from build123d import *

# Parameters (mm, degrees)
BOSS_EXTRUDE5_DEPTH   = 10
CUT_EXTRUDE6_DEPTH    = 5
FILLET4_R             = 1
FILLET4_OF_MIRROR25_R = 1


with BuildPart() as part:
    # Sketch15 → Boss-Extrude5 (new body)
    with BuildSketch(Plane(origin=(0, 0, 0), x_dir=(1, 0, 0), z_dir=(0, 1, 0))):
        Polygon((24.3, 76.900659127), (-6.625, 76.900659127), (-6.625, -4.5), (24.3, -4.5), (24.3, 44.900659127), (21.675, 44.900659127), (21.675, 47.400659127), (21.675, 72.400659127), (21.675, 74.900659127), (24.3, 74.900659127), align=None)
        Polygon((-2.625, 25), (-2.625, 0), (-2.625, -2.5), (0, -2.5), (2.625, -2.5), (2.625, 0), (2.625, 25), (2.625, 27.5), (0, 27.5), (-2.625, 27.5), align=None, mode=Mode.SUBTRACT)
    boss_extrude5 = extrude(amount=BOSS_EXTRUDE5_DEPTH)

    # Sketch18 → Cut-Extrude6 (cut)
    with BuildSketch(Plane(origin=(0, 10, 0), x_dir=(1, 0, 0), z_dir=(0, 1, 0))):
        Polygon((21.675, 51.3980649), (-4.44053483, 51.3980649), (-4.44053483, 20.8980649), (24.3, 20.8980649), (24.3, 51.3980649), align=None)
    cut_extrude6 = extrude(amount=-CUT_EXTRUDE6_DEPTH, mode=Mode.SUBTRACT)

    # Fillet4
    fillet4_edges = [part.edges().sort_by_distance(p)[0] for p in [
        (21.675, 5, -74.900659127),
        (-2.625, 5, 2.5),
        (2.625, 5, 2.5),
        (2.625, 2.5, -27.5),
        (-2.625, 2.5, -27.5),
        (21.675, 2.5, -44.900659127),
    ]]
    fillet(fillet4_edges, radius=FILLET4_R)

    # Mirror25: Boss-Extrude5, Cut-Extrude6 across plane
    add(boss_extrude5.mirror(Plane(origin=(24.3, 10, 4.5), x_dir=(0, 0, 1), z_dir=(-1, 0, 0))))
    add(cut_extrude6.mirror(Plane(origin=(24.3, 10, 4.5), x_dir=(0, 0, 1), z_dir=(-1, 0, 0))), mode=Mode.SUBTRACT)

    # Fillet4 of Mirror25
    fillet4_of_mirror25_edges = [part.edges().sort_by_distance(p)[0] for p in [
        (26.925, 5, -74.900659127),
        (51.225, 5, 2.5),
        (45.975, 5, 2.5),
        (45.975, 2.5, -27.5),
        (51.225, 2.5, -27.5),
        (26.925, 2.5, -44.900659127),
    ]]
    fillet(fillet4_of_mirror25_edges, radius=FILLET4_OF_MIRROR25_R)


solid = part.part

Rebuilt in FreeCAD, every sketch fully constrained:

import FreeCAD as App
import Part
import Sketcher

V = App.Vector
Q = App.Units.Quantity


def edges_at(feature, points):
    """Names of the edges that pass closest to the given points."""
    edges = feature.Shape.Edges
    near = lambda p: min(range(len(edges)), key=lambda i: edges[i].distToShape(Part.Vertex(*p))[0])
    return sorted({f"Edge{near(p) + 1}" for p in points})


def add_polygon(sketch, points):
    """Adds a closed chain of lines whose ends are joined by coincident constraints."""
    first, n = sketch.GeometryCount, len(points)
    for a, b in zip(points, points[1:] + points[:1]):
        sketch.addGeometry(Part.LineSegment(App.Vector(*a, 0), App.Vector(*b, 0)), False)
    for i in range(n):
        sketch.addConstraint(Sketcher.Constraint("Coincident", first + i, 2, first + (i + 1) % n, 1))

doc = App.newDocument("Part")
body = doc.addObject("PartDesign::Body", "Body")

sketch1 = doc.addObject("Sketcher::SketchObject", "Sketch")
body.addObject(sketch1)
sketch1.AttachmentSupport = (doc.XZ_Plane, [""])
sketch1.MapMode = "FlatFace"
add_polygon(sketch1, [(24.3, -76.900659), (-6.625, -76.900659), (-6.625, 4.5), (24.3, 4.5), (24.3, -44.900659), (21.675, -44.900659), (21.675, -74.900659), (24.3, -74.900659)])
add_polygon(sketch1, [(-2.625, 2.5), (-2.625, -27.5), (2.625, -27.5), (2.625, 2.5)])
sketch1.addConstraint([
    Sketcher.Constraint("Horizontal", 0),
    Sketcher.Constraint("Vertical", 1),
    Sketcher.Constraint("Horizontal", 2),
    Sketcher.Constraint("Vertical", 3),
    Sketcher.Constraint("Horizontal", 4),
    Sketcher.Constraint("Vertical", 5),
    Sketcher.Constraint("Horizontal", 6),
    Sketcher.Constraint("Vertical", 7),
    Sketcher.Constraint("Vertical", 8),
    Sketcher.Constraint("Horizontal", 9),
    Sketcher.Constraint("Vertical", 10),
    Sketcher.Constraint("Horizontal", 11),
    Sketcher.Constraint("Vertical", 3, 2, 6, 2),
    Sketcher.Constraint("Equal", 5, 8),
    Sketcher.Constraint("DistanceY", 5, 2, 5, 1, Q("30 mm")),
    Sketcher.Constraint("DistanceY", 7, 2, 7, 1, Q("2 mm")),
    Sketcher.Constraint("DistanceX", 1, 2, 8, 2, Q("4 mm")),
    Sketcher.Constraint("DistanceY", 8, 2, 1, 2, Q("32 mm")),
    Sketcher.Constraint("DistanceX", 9, 1, 9, 2, Q("5.25 mm")),
    Sketcher.Constraint("DistanceY", -1, 1, 1, 2, Q("4.5 mm")),
    Sketcher.Constraint("DistanceX", -1, 1, 2, 2, Q("24.3 mm")),
    Sketcher.Constraint("DistanceX", 0, 2, 4, 2, Q("28.3 mm")),
    Sketcher.Constraint("DistanceX", 0, 2, 0, 1, Q("30.925 mm")),
    Sketcher.Constraint("DistanceY", 1, 1, 1, 2, Q("81.400659 mm")),
])
pad1 = doc.addObject("PartDesign::Pad", "Pad")
body.addObject(pad1)
pad1.Profile = sketch1
pad1.Length = 10
pad1.Reversed = True

sketch2 = doc.addObject("Sketcher::SketchObject", "Sketch001")
body.addObject(sketch2)
sketch2.AttachmentSupport = (doc.XZ_Plane, [""])
sketch2.MapMode = "FlatFace"
sketch2.AttachmentOffset = App.Placement(V(0, 0, -10), App.Rotation())
add_polygon(sketch2, [(-4.440535, -51.398065), (-4.440535, -20.898065), (24.3, -20.898065), (24.3, -51.398065)])
sketch2.addConstraint([
    Sketcher.Constraint("Vertical", 0),
    Sketcher.Constraint("Horizontal", 1),
    Sketcher.Constraint("Vertical", 2),
    Sketcher.Constraint("Horizontal", 3),
    Sketcher.Constraint("DistanceY", 0, 1, 0, 2, Q("30.5 mm")),
    Sketcher.Constraint("DistanceX", -1, 1, 1, 2, Q("24.3 mm")),
    Sketcher.Constraint("DistanceX", 1, 1, 1, 2, Q("28.740535 mm")),
    Sketcher.Constraint("DistanceY", 0, 2, -1, 1, Q("20.898065 mm")),
])
pocket1 = doc.addObject("PartDesign::Pocket", "Pocket")
body.addObject(pocket1)
pocket1.Profile = sketch2
pocket1.Length = 5
pocket1.Reversed = True
doc.recompute()

fillet = doc.addObject("PartDesign::Fillet", "Fillet")
body.addObject(fillet)
fillet.Base = (pocket1, edges_at(pocket1, [
    (21.675, 5, -74.901),
    (-2.625, 5, 2.5),
    (2.625, 5, 2.5),
    (2.625, 2.5, -27.5),
    (-2.625, 2.5, -27.5),
    (21.675, 2.5, -44.901),
]))
fillet.Radius = 1
doc.recompute()

datumplane = doc.addObject("PartDesign::Plane", "DatumPlane")
body.addObject(datumplane)
datumplane.AttachmentSupport = (doc.YZ_Plane, [""])
datumplane.MapMode = "FlatFace"
datumplane.AttachmentOffset = App.Placement(V(0, 0, 24.3), App.Rotation())
mirrored = doc.addObject("PartDesign::Mirrored", "Mirrored")
body.addObject(mirrored)
mirrored.Originals = [pad1, pocket1]
mirrored.MirrorPlane = (datumplane, [""])
body.Tip = mirrored
doc.recompute()

fillet2 = doc.addObject("PartDesign::Fillet", "Fillet001")
body.addObject(fillet2)
fillet2.Base = (mirrored, edges_at(mirrored, [
    (26.925, 5, -74.901),
    (51.225, 5, 2.5),
    (45.975, 5, 2.5),
    (45.975, 2.5, -27.5),
    (51.225, 2.5, -27.5),
    (26.925, 2.5, -44.901),
]))
fillet2.Radius = 1

doc.recompute()
